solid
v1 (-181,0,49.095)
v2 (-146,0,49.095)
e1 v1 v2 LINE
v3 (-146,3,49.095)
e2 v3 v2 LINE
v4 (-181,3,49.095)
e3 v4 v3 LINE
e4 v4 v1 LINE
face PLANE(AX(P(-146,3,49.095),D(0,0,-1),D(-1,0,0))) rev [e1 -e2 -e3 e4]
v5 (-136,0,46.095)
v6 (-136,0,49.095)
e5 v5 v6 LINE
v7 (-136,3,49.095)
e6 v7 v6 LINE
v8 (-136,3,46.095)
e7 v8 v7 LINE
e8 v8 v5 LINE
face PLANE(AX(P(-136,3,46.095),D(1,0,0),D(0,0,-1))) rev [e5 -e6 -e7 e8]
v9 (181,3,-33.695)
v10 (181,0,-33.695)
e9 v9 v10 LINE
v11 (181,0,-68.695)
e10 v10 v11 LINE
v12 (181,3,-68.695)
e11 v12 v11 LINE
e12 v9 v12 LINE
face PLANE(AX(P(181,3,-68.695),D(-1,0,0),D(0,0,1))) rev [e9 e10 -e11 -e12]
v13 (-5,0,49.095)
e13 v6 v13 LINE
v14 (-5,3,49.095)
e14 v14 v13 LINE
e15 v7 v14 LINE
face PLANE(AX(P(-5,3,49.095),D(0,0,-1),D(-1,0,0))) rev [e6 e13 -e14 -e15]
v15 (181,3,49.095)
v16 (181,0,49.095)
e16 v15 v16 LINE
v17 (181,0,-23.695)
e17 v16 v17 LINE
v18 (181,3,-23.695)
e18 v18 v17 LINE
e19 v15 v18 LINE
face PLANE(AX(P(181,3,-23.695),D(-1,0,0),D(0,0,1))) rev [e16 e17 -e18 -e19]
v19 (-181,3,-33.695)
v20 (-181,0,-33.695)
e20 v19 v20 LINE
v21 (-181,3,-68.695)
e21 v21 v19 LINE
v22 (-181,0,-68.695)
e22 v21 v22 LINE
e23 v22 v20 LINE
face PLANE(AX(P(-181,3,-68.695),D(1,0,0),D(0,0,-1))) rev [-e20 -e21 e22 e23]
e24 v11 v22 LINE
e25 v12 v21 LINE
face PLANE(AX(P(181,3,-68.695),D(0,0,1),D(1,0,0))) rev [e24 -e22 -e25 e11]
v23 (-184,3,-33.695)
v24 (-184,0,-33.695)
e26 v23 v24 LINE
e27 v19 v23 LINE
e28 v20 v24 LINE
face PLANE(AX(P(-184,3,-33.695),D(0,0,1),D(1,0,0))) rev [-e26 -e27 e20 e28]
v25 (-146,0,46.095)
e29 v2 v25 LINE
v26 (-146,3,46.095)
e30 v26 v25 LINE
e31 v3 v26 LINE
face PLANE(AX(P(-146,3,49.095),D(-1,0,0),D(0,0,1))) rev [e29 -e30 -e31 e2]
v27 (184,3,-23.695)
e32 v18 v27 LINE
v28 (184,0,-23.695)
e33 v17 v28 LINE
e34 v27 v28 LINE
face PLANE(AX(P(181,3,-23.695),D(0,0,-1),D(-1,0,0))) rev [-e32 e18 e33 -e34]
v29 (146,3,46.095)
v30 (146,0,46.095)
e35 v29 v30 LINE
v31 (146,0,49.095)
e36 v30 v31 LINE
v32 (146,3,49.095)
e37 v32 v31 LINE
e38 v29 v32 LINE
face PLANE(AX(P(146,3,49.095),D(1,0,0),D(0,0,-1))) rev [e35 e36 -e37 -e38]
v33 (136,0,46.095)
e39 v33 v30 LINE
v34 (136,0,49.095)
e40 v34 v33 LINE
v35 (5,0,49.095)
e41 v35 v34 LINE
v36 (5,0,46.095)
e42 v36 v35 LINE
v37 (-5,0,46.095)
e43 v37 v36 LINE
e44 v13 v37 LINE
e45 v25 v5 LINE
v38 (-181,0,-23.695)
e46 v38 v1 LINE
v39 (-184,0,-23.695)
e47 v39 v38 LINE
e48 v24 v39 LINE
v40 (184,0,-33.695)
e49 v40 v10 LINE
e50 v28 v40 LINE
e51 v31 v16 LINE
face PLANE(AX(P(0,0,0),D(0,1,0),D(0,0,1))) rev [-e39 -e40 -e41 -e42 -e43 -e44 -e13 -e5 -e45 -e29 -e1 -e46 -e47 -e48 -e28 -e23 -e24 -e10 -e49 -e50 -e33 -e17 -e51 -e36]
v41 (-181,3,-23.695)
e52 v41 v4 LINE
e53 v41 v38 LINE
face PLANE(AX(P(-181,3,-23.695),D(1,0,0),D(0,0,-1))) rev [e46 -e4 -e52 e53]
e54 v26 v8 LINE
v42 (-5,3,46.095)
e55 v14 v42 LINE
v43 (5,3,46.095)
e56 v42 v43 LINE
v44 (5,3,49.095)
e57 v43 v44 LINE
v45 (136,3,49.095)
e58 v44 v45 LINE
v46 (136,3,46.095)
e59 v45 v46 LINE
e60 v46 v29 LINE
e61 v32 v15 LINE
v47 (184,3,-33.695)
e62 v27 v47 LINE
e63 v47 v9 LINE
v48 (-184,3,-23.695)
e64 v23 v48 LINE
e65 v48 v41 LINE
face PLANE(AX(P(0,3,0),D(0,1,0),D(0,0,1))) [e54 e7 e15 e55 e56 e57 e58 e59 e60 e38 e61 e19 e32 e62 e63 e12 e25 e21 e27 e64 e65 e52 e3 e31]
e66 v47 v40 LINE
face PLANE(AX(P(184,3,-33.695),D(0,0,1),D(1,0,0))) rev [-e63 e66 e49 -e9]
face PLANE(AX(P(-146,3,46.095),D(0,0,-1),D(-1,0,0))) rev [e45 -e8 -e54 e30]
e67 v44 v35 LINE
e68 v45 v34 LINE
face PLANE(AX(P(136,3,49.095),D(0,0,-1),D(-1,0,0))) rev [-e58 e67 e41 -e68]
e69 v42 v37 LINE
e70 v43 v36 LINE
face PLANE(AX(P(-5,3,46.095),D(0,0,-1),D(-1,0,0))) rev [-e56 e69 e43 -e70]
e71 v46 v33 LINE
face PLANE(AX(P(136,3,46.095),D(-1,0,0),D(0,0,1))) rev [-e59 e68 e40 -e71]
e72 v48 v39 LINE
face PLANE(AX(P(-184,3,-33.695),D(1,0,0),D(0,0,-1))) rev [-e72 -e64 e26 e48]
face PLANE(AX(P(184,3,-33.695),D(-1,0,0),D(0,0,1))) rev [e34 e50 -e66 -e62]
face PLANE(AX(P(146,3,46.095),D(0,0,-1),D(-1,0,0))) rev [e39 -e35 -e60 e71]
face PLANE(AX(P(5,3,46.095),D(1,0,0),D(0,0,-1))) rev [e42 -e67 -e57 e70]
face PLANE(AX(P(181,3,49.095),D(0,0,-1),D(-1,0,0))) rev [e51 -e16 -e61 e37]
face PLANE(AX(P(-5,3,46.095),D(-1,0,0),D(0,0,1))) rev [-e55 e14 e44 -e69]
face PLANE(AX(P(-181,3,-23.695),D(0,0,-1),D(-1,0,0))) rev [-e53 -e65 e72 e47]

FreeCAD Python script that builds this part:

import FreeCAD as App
import Part
import Sketcher


def add_polygon(sketch, points):
    """Adds a closed chain of lines whose ends are joined by coincident constraints."""
    first, n = sketch.GeometryCount, len(points)
    for a, b in zip(points, points[1:] + points[:1]):
        sketch.addGeometry(Part.LineSegment(App.Vector(*a, 0), App.Vector(*b, 0)), False)
    for i in range(n):
        sketch.addConstraint(Sketcher.Constraint("Coincident", first + i, 2, first + (i + 1) % n, 1))

doc = App.newDocument("Part")
body = doc.addObject("PartDesign::Body", "Body")

# Sketch on XZ plane
sketch1 = body.newObject("Sketcher::SketchObject", "Sketch")
sketch1.AttachmentSupport = (doc.getObject("XZ_Plane"), [""])
sketch1.MapMode = "FlatFace"
add_polygon(sketch1, [(-181, -33.7), (-184, -33.7), (-184, -23.7), (-181, -23.7), (-181, 49.1), (-146, 49.1), (-146, 46.1), (-136, 46.1), (-136, 49.1), (-5, 49.1), (-5, 46.1), (5, 46.1), (5, 49.1), (136, 49.1), (136, 46.1), (146, 46.1), (146, 49.1), (181, 49.1), (181, -23.7), (184, -23.7), (184, -33.7), (181, -33.7), (181, -68.7), (-181, -68.7)])  # lines 0-23
sketch1.addConstraint(Sketcher.Constraint("Horizontal", 0))
sketch1.addConstraint(Sketcher.Constraint("Vertical", 1))
sketch1.addConstraint(Sketcher.Constraint("Horizontal", 2))
sketch1.addConstraint(Sketcher.Constraint("Vertical", 3))
sketch1.addConstraint(Sketcher.Constraint("Horizontal", 4))
sketch1.addConstraint(Sketcher.Constraint("Vertical", 5))
sketch1.addConstraint(Sketcher.Constraint("Horizontal", 6))
sketch1.addConstraint(Sketcher.Constraint("Vertical", 7))
sketch1.addConstraint(Sketcher.Constraint("Horizontal", 8))
sketch1.addConstraint(Sketcher.Constraint("Vertical", 9))
sketch1.addConstraint(Sketcher.Constraint("Horizontal", 10))
sketch1.addConstraint(Sketcher.Constraint("Vertical", 11))
sketch1.addConstraint(Sketcher.Constraint("Horizontal", 12))
sketch1.addConstraint(Sketcher.Constraint("Vertical", 13))
sketch1.addConstraint(Sketcher.Constraint("Horizontal", 14))
sketch1.addConstraint(Sketcher.Constraint("Vertical", 15))
sketch1.addConstraint(Sketcher.Constraint("Horizontal", 16))
sketch1.addConstraint(Sketcher.Constraint("Vertical", 17))
sketch1.addConstraint(Sketcher.Constraint("Horizontal", 18))
sketch1.addConstraint(Sketcher.Constraint("Vertical", 19))
sketch1.addConstraint(Sketcher.Constraint("Horizontal", 20))
sketch1.addConstraint(Sketcher.Constraint("Vertical", 21))
sketch1.addConstraint(Sketcher.Constraint("Horizontal", 22))
sketch1.addConstraint(Sketcher.Constraint("Vertical", 23))
sketch1.addConstraint(Sketcher.Constraint("Symmetric", 8, 2, 11, 2, -2))
sketch1.addConstraint(Sketcher.Constraint("Symmetric", 6, 2, 13, 2, -2))
sketch1.addConstraint(Sketcher.Constraint("Symmetric", 4, 2, 15, 2, -2))
sketch1.addConstraint(Sketcher.Constraint("Symmetric", 2, 2, 17, 2, -2))
sketch1.addConstraint(Sketcher.Constraint("Symmetric", 0, 2, 19, 2, -2))
sketch1.addConstraint(Sketcher.Constraint("Horizontal", 4, 2, 7, 2))
sketch1.addConstraint(Sketcher.Constraint("Horizontal", 6, 2, 9, 2))
sketch1.addConstraint(Sketcher.Constraint("Vertical", 17, 2, 20, 2))
sketch1.addConstraint(Sketcher.Constraint("Vertical", 3, 2, 22, 2))
sketch1.addConstraint(Sketcher.Constraint("Equal", 6, 10))
sketch1.addConstraint(Sketcher.Constraint("Equal", 14, 1))
sketch1.addConstraint(Sketcher.Constraint("Equal", 20, 5))
sketch1.addConstraint(Sketcher.Constraint("Equal", 16, 21))
sketch1.addConstraint(Sketcher.Constraint("DistanceX", 0, 2, 0, 1, 3.0))
sketch1.addConstraint(Sketcher.Constraint("DistanceX", 4, 1, 4, 2, 35.0))
sketch1.addConstraint(Sketcher.Constraint("DistanceX", 6, 1, 6, 2, 10.0))
sketch1.addConstraint(Sketcher.Constraint("DistanceX", 8, 1, 8, 2, 131.0))
sketch1.addConstraint(Sketcher.Constraint("DistanceY", 3, 1, 3, 2, 72.79))
sketch1.addConstraint(Sketcher.Constraint("DistanceY", 0, 2, -1, 1, 33.695))
pad1 = body.newObject("PartDesign::Pad", "Pad")
pad1.Profile = sketch1
pad1.Length = 3
pad1.Reversed = True

doc.recompute()
